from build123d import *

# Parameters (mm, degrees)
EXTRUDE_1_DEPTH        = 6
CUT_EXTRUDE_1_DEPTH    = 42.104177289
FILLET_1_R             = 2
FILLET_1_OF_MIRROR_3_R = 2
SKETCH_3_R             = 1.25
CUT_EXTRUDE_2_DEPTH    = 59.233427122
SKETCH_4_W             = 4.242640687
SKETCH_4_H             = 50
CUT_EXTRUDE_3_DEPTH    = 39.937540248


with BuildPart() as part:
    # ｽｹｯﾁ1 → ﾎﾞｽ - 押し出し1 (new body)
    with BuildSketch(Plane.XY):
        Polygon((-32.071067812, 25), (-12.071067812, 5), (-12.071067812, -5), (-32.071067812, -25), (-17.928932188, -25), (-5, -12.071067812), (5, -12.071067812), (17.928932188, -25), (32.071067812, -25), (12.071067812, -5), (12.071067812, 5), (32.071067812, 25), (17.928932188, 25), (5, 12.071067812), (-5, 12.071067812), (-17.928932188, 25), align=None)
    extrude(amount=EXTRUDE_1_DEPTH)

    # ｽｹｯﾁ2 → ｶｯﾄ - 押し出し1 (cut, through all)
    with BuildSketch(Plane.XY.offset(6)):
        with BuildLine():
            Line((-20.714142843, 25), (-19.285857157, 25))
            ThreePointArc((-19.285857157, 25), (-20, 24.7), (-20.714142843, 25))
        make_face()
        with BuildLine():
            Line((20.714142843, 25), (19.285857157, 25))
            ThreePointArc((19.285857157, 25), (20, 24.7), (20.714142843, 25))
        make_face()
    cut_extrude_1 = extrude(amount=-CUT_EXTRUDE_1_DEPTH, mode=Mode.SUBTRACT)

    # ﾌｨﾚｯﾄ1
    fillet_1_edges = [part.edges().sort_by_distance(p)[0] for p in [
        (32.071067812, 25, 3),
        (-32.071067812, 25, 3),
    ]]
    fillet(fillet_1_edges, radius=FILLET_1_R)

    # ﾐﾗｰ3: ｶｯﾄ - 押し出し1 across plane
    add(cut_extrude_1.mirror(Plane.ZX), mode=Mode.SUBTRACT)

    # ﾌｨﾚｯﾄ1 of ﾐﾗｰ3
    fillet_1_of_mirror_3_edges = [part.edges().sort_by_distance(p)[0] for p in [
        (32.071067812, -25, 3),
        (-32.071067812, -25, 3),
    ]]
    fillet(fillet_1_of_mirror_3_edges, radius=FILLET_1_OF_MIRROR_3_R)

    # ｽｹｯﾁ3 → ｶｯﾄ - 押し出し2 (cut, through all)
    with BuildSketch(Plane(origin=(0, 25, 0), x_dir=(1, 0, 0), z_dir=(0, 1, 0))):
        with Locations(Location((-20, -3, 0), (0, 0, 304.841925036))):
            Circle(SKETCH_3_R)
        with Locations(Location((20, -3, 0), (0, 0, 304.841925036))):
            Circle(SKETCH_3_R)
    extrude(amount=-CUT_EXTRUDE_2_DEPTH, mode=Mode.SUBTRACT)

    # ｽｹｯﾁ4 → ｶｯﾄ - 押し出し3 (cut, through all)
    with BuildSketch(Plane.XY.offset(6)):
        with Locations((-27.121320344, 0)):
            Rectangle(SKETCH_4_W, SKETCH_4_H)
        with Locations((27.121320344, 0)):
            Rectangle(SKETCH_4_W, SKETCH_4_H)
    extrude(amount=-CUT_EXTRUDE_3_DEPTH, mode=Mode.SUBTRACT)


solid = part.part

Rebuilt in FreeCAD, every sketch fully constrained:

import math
import FreeCAD as App
import Part
import Sketcher


def edges_at(feature, points):
    """Names of the edges that pass closest to the given points."""
    edges = feature.Shape.Edges
    near = lambda p: min(range(len(edges)), key=lambda i: edges[i].distToShape(Part.Vertex(*p))[0])
    return sorted({f"Edge{near(p) + 1}" for p in points})

doc = App.newDocument("Part")
body = doc.addObject("PartDesign::Body", "Body")

sketch1 = body.newObject("Sketcher::SketchObject", "Sketch")
sketch1.AttachmentSupport = (doc.getObject("XY_Plane"), [""])
sketch1.MapMode = "FlatFace"
sketch1.addGeometry(Part.LineSegment(App.Vector(-32.071068, 25, 0), App.Vector(-12.071068, 5, 0)), False)
sketch1.addGeometry(Part.LineSegment(App.Vector(-12.071068, 5, 0), App.Vector(-12.071068, -5, 0)), False)
sketch1.addGeometry(Part.LineSegment(App.Vector(-12.071068, -5, 0), App.Vector(-32.071068, -25, 0)), False)
sketch1.addGeometry(Part.LineSegment(App.Vector(-32.071068, -25, 0), App.Vector(-17.928932, -25, 0)), False)
sketch1.addGeometry(Part.LineSegment(App.Vector(-17.928932, -25, 0), App.Vector(-5, -12.071068, 0)), False)
sketch1.addGeometry(Part.LineSegment(App.Vector(-5, -12.071068, 0), App.Vector(5, -12.071068, 0)), False)
sketch1.addGeometry(Part.LineSegment(App.Vector(5, -12.071068, 0), App.Vector(17.928932, -25, 0)), False)
sketch1.addGeometry(Part.LineSegment(App.Vector(17.928932, -25, 0), App.Vector(32.071068, -25, 0)), False)
sketch1.addGeometry(Part.LineSegment(App.Vector(32.071068, -25, 0), App.Vector(12.071068, -5, 0)), False)
sketch1.addGeometry(Part.LineSegment(App.Vector(12.071068, -5, 0), App.Vector(12.071068, 5, 0)), False)
sketch1.addGeometry(Part.LineSegment(App.Vector(12.071068, 5, 0), App.Vector(32.071068, 25, 0)), False)
sketch1.addGeometry(Part.LineSegment(App.Vector(32.071068, 25, 0), App.Vector(17.928932, 25, 0)), False)
sketch1.addGeometry(Part.LineSegment(App.Vector(17.928932, 25, 0), App.Vector(5, 12.071068, 0)), False)
sketch1.addGeometry(Part.LineSegment(App.Vector(5, 12.071068, 0), App.Vector(-5, 12.071068, 0)), False)
sketch1.addGeometry(Part.LineSegment(App.Vector(-5, 12.071068, 0), App.Vector(-17.928932, 25, 0)), False)
sketch1.addGeometry(Part.LineSegment(App.Vector(-17.928932, 25, 0), App.Vector(-32.071068, 25, 0)), False)
sketch1.addConstraint(Sketcher.Constraint("Coincident", 0, 2, 1, 1))
sketch1.addConstraint(Sketcher.Constraint("Coincident", 1, 2, 2, 1))
sketch1.addConstraint(Sketcher.Constraint("Coincident", 2, 2, 3, 1))
sketch1.addConstraint(Sketcher.Constraint("Coincident", 3, 2, 4, 1))
sketch1.addConstraint(Sketcher.Constraint("Coincident", 4, 2, 5, 1))
sketch1.addConstraint(Sketcher.Constraint("Coincident", 5, 2, 6, 1))
sketch1.addConstraint(Sketcher.Constraint("Coincident", 6, 2, 7, 1))
sketch1.addConstraint(Sketcher.Constraint("Coincident", 7, 2, 8, 1))
sketch1.addConstraint(Sketcher.Constraint("Coincident", 8, 2, 9, 1))
sketch1.addConstraint(Sketcher.Constraint("Coincident", 9, 2, 10, 1))
sketch1.addConstraint(Sketcher.Constraint("Coincident", 10, 2, 11, 1))
sketch1.addConstraint(Sketcher.Constraint("Coincident", 11, 2, 12, 1))
sketch1.addConstraint(Sketcher.Constraint("Coincident", 12, 2, 13, 1))
sketch1.addConstraint(Sketcher.Constraint("Coincident", 13, 2, 14, 1))
sketch1.addConstraint(Sketcher.Constraint("Coincident", 14, 2, 15, 1))
sketch1.addConstraint(Sketcher.Constraint("Coincident", 15, 2, 0, 1))
sketch1.addConstraint(Sketcher.Constraint("Vertical", 1))
sketch1.addConstraint(Sketcher.Constraint("Horizontal", 3))
sketch1.addConstraint(Sketcher.Constraint("Horizontal", 5))
sketch1.addConstraint(Sketcher.Constraint("Horizontal", 7))
sketch1.addConstraint(Sketcher.Constraint("Vertical", 9))
sketch1.addConstraint(Sketcher.Constraint("Horizontal", 11))
sketch1.addConstraint(Sketcher.Constraint("Horizontal", 13))
sketch1.addConstraint(Sketcher.Constraint("Horizontal", 15))
sketch1.addConstraint(Sketcher.Constraint("Symmetric", 0, 2, 8, 2, -1, 1))
sketch1.addConstraint(Sketcher.Constraint("Symmetric", 2, 2, 10, 2, -1, 1))
sketch1.addConstraint(Sketcher.Constraint("Symmetric", 4, 2, 12, 2, -1, 1))
sketch1.addConstraint(Sketcher.Constraint("Symmetric", 6, 2, 14, 2, -1, 1))
sketch1.addConstraint(Sketcher.Constraint("Symmetric", 3, 2, 6, 2, -2))
sketch1.addConstraint(Sketcher.Constraint("Perpendicular", 0, 2))
sketch1.addConstraint(Sketcher.Constraint("Parallel", 2, 4))
sketch1.addConstraint(Sketcher.Constraint("Perpendicular", 4, 6))
sketch1.addConstraint(Sketcher.Constraint("Parallel", 6, 8))
sketch1.addConstraint(Sketcher.Constraint("Perpendicular", 8, 10))
sketch1.addConstraint(Sketcher.Constraint("Parallel", 10, 12))
sketch1.addConstraint(Sketcher.Constraint("Perpendicular", 12, 14))
sketch1.addConstraint(Sketcher.Constraint("Horizontal", 1, 2, 8, 2))
sketch1.addConstraint(Sketcher.Constraint("Vertical", 7, 2, 10, 2))
sketch1.addConstraint(Sketcher.Constraint("Equal", 13, 1))
sketch1.addConstraint(Sketcher.Constraint("DistanceX", 5, 1, 5, 2, 10.0))
sketch1.addConstraint(Sketcher.Constraint("DistanceY", 2, 2, -1, 1, 25.0))
sketch1.addConstraint(Sketcher.Constraint("DistanceX", 1, 2, 6, 2, 30.0))
sketch1.addConstraint(Sketcher.Constraint("Distance", 4, 18.284271))
pad1 = body.newObject("PartDesign::Pad", "Pad")
pad1.Profile = sketch1
pad1.Length = 6

sketch2 = body.newObject("Sketcher::SketchObject", "Sketch001")
sketch2.AttachmentSupport = (doc.getObject("XY_Plane"), [""])
sketch2.MapMode = "FlatFace"
sketch2.AttachmentOffset = App.Placement(App.Vector(0, 0, 6), App.Rotation())
sketch2.addGeometry(Part.LineSegment(App.Vector(-19.285857, 25, 0), App.Vector(-20.714143, 25, 0)), False)
sketch2.addGeometry(Part.ArcOfCircle(Part.Circle(App.Vector(-20, 25.7, 0), App.Vector(0, 0, 1), 1), math.radians(-135.572996), math.radians(-44.427004)), False)
sketch2.addGeometry(Part.LineSegment(App.Vector(20.714143, 25, 0), App.Vector(19.285857, 25, 0)), False)
sketch2.addGeometry(Part.ArcOfCircle(Part.Circle(App.Vector(20, 25.7, 0), App.Vector(0, 0, 1), 1), math.radians(-135.572996), math.radians(-44.427004)), False)
sketch2.addConstraint(Sketcher.Constraint("Coincident", 0, 1, 1, 2))
sketch2.addConstraint(Sketcher.Constraint("Coincident", 1, 1, 0, 2))
sketch2.addConstraint(Sketcher.Constraint("Coincident", 2, 1, 3, 2))
sketch2.addConstraint(Sketcher.Constraint("Coincident", 3, 1, 2, 2))
sketch2.addConstraint(Sketcher.Constraint("Horizontal", 0))
sketch2.addConstraint(Sketcher.Constraint("Horizontal", 2))
sketch2.addConstraint(Sketcher.Constraint("Equal", 1, 3))
sketch2.addConstraint(Sketcher.Constraint("Symmetric", 1, 3, 3, 3, -2))
sketch2.addConstraint(Sketcher.Constraint("Horizontal", 1, 1, 2, 1))
sketch2.addConstraint(Sketcher.Constraint("Radius", 1, 1.0))
sketch2.addConstraint(Sketcher.Constraint("DistanceX", 1, 3, -1, 1, 20.0))
sketch2.addConstraint(Sketcher.Constraint("DistanceY", -1, 1, 0, 1, 25.0))
sketch2.addConstraint(Sketcher.Constraint("DistanceY", -1, 1, 1, 3, 25.7))
pocket1 = body.newObject("PartDesign::Pocket", "Pocket")
pocket1.Profile = sketch2
pocket1.Type = "ThroughAll"
doc.recompute()

fillet = body.newObject("PartDesign::Fillet", "Fillet")
fillet.Base = (pocket1, edges_at(pocket1, [(32.071, 25, 3), (-32.071, 25, 3)]))
fillet.Radius = 2
doc.recompute()

mirrored = body.newObject("PartDesign::Mirrored", "Mirrored")
mirrored.Originals = [pocket1]
mirrored.MirrorPlane = (doc.getObject("XZ_Plane"), [""])
body.Tip = mirrored
doc.recompute()

fillet2 = body.newObject("PartDesign::Fillet", "Fillet001")
fillet2.Base = (mirrored, edges_at(mirrored, [(32.071, -25, 3), (-32.071, -25, 3)]))
fillet2.Radius = 2

sketch3 = body.newObject("Sketcher::SketchObject", "Sketch002")
sketch3.AttachmentSupport = (doc.getObject("XZ_Plane"), [""])
sketch3.MapMode = "FlatFace"
sketch3.AttachmentOffset = App.Placement(App.Vector(0, 0, -25), App.Rotation())
sketch3.addGeometry(Part.Circle(App.Vector(-20, 3, 0), App.Vector(0, 0, 1), 1.25), False)
sketch3.addGeometry(Part.Circle(App.Vector(20, 3, 0), App.Vector(0, 0, 1), 1.25), False)
sketch3.addConstraint(Sketcher.Constraint("Equal", 0, 1))
sketch3.addConstraint(Sketcher.Constraint("Symmetric", 0, 3, 1, 3, -2))
sketch3.addConstraint(Sketcher.Constraint("Diameter", 0, 2.5))
sketch3.addConstraint(Sketcher.Constraint("DistanceX", 0, 3, -1, 1, 20.0))
sketch3.addConstraint(Sketcher.Constraint("DistanceY", -1, 1, 0, 3, 3.0))
pocket2 = body.newObject("PartDesign::Pocket", "Pocket001")
pocket2.Profile = sketch3
pocket2.Type = "ThroughAll"
pocket2.Reversed = True

sketch4 = body.newObject("Sketcher::SketchObject", "Sketch003")
sketch4.AttachmentSupport = (doc.getObject("XY_Plane"), [""])
sketch4.MapMode = "FlatFace"
sketch4.AttachmentOffset = App.Placement(App.Vector(0, 0, 6), App.Rotation())
sketch4.addGeometry(Part.LineSegment(App.Vector(-29.242641, 25, 0), App.Vector(-29.242641, -25, 0)), False)
sketch4.addGeometry(Part.LineSegment(App.Vector(-29.242641, -25, 0), App.Vector(-25, -25, 0)), False)
sketch4.addGeometry(Part.LineSegment(App.Vector(-25, -25, 0), App.Vector(-25, 25, 0)), False)
sketch4.addGeometry(Part.LineSegment(App.Vector(-25, 25, 0), App.Vector(-29.242641, 25, 0)), False)
sketch4.addGeometry(Part.LineSegment(App.Vector(25, 25, 0), App.Vector(25, -25, 0)), False)
sketch4.addGeometry(Part.LineSegment(App.Vector(25, -25, 0), App.Vector(29.242641, -25, 0)), False)
sketch4.addGeometry(Part.LineSegment(App.Vector(29.242641, -25, 0), App.Vector(29.242641, 25, 0)), False)
sketch4.addGeometry(Part.LineSegment(App.Vector(29.242641, 25, 0), App.Vector(25, 25, 0)), False)
sketch4.addConstraint(Sketcher.Constraint("Coincident", 0, 2, 1, 1))
sketch4.addConstraint(Sketcher.Constraint("Coincident", 1, 2, 2, 1))
sketch4.addConstraint(Sketcher.Constraint("Coincident", 2, 2, 3, 1))
sketch4.addConstraint(Sketcher.Constraint("Coincident", 3, 2, 0, 1))
sketch4.addConstraint(Sketcher.Constraint("Coincident", 4, 2, 5, 1))
sketch4.addConstraint(Sketcher.Constraint("Coincident", 5, 2, 6, 1))
sketch4.addConstraint(Sketcher.Constraint("Coincident", 6, 2, 7, 1))
sketch4.addConstraint(Sketcher.Constraint("Coincident", 7, 2, 4, 1))
sketch4.addConstraint(Sketcher.Constraint("Vertical", 0))
sketch4.addConstraint(Sketcher.Constraint("Horizontal", 1))
sketch4.addConstraint(Sketcher.Constraint("Vertical", 2))
sketch4.addConstraint(Sketcher.Constraint("Horizontal", 3))
sketch4.addConstraint(Sketcher.Constraint("Vertical", 4))
sketch4.addConstraint(Sketcher.Constraint("Horizontal", 5))
sketch4.addConstraint(Sketcher.Constraint("Vertical", 6))
sketch4.addConstraint(Sketcher.Constraint("Horizontal", 7))
sketch4.addConstraint(Sketcher.Constraint("Symmetric", 2, 2, 4, 2, -1, 1))
sketch4.addConstraint(Sketcher.Constraint("Symmetric", 0, 2, 6, 2, -1, 1))
sketch4.addConstraint(Sketcher.Constraint("Horizontal", 1, 2, 4, 2))
sketch4.addConstraint(Sketcher.Constraint("DistanceY", 0, 2, 0, 1, 50.0))
sketch4.addConstraint(Sketcher.Constraint("DistanceX", 1, 2, -1, 1, 25.0))
sketch4.addConstraint(Sketcher.Constraint("DistanceX", 1, 1, 1, 2, 4.242641))
pocket3 = body.newObject("PartDesign::Pocket", "Pocket002")
pocket3.Profile = sketch4
pocket3.Type = "ThroughAll"

doc.recompute()
